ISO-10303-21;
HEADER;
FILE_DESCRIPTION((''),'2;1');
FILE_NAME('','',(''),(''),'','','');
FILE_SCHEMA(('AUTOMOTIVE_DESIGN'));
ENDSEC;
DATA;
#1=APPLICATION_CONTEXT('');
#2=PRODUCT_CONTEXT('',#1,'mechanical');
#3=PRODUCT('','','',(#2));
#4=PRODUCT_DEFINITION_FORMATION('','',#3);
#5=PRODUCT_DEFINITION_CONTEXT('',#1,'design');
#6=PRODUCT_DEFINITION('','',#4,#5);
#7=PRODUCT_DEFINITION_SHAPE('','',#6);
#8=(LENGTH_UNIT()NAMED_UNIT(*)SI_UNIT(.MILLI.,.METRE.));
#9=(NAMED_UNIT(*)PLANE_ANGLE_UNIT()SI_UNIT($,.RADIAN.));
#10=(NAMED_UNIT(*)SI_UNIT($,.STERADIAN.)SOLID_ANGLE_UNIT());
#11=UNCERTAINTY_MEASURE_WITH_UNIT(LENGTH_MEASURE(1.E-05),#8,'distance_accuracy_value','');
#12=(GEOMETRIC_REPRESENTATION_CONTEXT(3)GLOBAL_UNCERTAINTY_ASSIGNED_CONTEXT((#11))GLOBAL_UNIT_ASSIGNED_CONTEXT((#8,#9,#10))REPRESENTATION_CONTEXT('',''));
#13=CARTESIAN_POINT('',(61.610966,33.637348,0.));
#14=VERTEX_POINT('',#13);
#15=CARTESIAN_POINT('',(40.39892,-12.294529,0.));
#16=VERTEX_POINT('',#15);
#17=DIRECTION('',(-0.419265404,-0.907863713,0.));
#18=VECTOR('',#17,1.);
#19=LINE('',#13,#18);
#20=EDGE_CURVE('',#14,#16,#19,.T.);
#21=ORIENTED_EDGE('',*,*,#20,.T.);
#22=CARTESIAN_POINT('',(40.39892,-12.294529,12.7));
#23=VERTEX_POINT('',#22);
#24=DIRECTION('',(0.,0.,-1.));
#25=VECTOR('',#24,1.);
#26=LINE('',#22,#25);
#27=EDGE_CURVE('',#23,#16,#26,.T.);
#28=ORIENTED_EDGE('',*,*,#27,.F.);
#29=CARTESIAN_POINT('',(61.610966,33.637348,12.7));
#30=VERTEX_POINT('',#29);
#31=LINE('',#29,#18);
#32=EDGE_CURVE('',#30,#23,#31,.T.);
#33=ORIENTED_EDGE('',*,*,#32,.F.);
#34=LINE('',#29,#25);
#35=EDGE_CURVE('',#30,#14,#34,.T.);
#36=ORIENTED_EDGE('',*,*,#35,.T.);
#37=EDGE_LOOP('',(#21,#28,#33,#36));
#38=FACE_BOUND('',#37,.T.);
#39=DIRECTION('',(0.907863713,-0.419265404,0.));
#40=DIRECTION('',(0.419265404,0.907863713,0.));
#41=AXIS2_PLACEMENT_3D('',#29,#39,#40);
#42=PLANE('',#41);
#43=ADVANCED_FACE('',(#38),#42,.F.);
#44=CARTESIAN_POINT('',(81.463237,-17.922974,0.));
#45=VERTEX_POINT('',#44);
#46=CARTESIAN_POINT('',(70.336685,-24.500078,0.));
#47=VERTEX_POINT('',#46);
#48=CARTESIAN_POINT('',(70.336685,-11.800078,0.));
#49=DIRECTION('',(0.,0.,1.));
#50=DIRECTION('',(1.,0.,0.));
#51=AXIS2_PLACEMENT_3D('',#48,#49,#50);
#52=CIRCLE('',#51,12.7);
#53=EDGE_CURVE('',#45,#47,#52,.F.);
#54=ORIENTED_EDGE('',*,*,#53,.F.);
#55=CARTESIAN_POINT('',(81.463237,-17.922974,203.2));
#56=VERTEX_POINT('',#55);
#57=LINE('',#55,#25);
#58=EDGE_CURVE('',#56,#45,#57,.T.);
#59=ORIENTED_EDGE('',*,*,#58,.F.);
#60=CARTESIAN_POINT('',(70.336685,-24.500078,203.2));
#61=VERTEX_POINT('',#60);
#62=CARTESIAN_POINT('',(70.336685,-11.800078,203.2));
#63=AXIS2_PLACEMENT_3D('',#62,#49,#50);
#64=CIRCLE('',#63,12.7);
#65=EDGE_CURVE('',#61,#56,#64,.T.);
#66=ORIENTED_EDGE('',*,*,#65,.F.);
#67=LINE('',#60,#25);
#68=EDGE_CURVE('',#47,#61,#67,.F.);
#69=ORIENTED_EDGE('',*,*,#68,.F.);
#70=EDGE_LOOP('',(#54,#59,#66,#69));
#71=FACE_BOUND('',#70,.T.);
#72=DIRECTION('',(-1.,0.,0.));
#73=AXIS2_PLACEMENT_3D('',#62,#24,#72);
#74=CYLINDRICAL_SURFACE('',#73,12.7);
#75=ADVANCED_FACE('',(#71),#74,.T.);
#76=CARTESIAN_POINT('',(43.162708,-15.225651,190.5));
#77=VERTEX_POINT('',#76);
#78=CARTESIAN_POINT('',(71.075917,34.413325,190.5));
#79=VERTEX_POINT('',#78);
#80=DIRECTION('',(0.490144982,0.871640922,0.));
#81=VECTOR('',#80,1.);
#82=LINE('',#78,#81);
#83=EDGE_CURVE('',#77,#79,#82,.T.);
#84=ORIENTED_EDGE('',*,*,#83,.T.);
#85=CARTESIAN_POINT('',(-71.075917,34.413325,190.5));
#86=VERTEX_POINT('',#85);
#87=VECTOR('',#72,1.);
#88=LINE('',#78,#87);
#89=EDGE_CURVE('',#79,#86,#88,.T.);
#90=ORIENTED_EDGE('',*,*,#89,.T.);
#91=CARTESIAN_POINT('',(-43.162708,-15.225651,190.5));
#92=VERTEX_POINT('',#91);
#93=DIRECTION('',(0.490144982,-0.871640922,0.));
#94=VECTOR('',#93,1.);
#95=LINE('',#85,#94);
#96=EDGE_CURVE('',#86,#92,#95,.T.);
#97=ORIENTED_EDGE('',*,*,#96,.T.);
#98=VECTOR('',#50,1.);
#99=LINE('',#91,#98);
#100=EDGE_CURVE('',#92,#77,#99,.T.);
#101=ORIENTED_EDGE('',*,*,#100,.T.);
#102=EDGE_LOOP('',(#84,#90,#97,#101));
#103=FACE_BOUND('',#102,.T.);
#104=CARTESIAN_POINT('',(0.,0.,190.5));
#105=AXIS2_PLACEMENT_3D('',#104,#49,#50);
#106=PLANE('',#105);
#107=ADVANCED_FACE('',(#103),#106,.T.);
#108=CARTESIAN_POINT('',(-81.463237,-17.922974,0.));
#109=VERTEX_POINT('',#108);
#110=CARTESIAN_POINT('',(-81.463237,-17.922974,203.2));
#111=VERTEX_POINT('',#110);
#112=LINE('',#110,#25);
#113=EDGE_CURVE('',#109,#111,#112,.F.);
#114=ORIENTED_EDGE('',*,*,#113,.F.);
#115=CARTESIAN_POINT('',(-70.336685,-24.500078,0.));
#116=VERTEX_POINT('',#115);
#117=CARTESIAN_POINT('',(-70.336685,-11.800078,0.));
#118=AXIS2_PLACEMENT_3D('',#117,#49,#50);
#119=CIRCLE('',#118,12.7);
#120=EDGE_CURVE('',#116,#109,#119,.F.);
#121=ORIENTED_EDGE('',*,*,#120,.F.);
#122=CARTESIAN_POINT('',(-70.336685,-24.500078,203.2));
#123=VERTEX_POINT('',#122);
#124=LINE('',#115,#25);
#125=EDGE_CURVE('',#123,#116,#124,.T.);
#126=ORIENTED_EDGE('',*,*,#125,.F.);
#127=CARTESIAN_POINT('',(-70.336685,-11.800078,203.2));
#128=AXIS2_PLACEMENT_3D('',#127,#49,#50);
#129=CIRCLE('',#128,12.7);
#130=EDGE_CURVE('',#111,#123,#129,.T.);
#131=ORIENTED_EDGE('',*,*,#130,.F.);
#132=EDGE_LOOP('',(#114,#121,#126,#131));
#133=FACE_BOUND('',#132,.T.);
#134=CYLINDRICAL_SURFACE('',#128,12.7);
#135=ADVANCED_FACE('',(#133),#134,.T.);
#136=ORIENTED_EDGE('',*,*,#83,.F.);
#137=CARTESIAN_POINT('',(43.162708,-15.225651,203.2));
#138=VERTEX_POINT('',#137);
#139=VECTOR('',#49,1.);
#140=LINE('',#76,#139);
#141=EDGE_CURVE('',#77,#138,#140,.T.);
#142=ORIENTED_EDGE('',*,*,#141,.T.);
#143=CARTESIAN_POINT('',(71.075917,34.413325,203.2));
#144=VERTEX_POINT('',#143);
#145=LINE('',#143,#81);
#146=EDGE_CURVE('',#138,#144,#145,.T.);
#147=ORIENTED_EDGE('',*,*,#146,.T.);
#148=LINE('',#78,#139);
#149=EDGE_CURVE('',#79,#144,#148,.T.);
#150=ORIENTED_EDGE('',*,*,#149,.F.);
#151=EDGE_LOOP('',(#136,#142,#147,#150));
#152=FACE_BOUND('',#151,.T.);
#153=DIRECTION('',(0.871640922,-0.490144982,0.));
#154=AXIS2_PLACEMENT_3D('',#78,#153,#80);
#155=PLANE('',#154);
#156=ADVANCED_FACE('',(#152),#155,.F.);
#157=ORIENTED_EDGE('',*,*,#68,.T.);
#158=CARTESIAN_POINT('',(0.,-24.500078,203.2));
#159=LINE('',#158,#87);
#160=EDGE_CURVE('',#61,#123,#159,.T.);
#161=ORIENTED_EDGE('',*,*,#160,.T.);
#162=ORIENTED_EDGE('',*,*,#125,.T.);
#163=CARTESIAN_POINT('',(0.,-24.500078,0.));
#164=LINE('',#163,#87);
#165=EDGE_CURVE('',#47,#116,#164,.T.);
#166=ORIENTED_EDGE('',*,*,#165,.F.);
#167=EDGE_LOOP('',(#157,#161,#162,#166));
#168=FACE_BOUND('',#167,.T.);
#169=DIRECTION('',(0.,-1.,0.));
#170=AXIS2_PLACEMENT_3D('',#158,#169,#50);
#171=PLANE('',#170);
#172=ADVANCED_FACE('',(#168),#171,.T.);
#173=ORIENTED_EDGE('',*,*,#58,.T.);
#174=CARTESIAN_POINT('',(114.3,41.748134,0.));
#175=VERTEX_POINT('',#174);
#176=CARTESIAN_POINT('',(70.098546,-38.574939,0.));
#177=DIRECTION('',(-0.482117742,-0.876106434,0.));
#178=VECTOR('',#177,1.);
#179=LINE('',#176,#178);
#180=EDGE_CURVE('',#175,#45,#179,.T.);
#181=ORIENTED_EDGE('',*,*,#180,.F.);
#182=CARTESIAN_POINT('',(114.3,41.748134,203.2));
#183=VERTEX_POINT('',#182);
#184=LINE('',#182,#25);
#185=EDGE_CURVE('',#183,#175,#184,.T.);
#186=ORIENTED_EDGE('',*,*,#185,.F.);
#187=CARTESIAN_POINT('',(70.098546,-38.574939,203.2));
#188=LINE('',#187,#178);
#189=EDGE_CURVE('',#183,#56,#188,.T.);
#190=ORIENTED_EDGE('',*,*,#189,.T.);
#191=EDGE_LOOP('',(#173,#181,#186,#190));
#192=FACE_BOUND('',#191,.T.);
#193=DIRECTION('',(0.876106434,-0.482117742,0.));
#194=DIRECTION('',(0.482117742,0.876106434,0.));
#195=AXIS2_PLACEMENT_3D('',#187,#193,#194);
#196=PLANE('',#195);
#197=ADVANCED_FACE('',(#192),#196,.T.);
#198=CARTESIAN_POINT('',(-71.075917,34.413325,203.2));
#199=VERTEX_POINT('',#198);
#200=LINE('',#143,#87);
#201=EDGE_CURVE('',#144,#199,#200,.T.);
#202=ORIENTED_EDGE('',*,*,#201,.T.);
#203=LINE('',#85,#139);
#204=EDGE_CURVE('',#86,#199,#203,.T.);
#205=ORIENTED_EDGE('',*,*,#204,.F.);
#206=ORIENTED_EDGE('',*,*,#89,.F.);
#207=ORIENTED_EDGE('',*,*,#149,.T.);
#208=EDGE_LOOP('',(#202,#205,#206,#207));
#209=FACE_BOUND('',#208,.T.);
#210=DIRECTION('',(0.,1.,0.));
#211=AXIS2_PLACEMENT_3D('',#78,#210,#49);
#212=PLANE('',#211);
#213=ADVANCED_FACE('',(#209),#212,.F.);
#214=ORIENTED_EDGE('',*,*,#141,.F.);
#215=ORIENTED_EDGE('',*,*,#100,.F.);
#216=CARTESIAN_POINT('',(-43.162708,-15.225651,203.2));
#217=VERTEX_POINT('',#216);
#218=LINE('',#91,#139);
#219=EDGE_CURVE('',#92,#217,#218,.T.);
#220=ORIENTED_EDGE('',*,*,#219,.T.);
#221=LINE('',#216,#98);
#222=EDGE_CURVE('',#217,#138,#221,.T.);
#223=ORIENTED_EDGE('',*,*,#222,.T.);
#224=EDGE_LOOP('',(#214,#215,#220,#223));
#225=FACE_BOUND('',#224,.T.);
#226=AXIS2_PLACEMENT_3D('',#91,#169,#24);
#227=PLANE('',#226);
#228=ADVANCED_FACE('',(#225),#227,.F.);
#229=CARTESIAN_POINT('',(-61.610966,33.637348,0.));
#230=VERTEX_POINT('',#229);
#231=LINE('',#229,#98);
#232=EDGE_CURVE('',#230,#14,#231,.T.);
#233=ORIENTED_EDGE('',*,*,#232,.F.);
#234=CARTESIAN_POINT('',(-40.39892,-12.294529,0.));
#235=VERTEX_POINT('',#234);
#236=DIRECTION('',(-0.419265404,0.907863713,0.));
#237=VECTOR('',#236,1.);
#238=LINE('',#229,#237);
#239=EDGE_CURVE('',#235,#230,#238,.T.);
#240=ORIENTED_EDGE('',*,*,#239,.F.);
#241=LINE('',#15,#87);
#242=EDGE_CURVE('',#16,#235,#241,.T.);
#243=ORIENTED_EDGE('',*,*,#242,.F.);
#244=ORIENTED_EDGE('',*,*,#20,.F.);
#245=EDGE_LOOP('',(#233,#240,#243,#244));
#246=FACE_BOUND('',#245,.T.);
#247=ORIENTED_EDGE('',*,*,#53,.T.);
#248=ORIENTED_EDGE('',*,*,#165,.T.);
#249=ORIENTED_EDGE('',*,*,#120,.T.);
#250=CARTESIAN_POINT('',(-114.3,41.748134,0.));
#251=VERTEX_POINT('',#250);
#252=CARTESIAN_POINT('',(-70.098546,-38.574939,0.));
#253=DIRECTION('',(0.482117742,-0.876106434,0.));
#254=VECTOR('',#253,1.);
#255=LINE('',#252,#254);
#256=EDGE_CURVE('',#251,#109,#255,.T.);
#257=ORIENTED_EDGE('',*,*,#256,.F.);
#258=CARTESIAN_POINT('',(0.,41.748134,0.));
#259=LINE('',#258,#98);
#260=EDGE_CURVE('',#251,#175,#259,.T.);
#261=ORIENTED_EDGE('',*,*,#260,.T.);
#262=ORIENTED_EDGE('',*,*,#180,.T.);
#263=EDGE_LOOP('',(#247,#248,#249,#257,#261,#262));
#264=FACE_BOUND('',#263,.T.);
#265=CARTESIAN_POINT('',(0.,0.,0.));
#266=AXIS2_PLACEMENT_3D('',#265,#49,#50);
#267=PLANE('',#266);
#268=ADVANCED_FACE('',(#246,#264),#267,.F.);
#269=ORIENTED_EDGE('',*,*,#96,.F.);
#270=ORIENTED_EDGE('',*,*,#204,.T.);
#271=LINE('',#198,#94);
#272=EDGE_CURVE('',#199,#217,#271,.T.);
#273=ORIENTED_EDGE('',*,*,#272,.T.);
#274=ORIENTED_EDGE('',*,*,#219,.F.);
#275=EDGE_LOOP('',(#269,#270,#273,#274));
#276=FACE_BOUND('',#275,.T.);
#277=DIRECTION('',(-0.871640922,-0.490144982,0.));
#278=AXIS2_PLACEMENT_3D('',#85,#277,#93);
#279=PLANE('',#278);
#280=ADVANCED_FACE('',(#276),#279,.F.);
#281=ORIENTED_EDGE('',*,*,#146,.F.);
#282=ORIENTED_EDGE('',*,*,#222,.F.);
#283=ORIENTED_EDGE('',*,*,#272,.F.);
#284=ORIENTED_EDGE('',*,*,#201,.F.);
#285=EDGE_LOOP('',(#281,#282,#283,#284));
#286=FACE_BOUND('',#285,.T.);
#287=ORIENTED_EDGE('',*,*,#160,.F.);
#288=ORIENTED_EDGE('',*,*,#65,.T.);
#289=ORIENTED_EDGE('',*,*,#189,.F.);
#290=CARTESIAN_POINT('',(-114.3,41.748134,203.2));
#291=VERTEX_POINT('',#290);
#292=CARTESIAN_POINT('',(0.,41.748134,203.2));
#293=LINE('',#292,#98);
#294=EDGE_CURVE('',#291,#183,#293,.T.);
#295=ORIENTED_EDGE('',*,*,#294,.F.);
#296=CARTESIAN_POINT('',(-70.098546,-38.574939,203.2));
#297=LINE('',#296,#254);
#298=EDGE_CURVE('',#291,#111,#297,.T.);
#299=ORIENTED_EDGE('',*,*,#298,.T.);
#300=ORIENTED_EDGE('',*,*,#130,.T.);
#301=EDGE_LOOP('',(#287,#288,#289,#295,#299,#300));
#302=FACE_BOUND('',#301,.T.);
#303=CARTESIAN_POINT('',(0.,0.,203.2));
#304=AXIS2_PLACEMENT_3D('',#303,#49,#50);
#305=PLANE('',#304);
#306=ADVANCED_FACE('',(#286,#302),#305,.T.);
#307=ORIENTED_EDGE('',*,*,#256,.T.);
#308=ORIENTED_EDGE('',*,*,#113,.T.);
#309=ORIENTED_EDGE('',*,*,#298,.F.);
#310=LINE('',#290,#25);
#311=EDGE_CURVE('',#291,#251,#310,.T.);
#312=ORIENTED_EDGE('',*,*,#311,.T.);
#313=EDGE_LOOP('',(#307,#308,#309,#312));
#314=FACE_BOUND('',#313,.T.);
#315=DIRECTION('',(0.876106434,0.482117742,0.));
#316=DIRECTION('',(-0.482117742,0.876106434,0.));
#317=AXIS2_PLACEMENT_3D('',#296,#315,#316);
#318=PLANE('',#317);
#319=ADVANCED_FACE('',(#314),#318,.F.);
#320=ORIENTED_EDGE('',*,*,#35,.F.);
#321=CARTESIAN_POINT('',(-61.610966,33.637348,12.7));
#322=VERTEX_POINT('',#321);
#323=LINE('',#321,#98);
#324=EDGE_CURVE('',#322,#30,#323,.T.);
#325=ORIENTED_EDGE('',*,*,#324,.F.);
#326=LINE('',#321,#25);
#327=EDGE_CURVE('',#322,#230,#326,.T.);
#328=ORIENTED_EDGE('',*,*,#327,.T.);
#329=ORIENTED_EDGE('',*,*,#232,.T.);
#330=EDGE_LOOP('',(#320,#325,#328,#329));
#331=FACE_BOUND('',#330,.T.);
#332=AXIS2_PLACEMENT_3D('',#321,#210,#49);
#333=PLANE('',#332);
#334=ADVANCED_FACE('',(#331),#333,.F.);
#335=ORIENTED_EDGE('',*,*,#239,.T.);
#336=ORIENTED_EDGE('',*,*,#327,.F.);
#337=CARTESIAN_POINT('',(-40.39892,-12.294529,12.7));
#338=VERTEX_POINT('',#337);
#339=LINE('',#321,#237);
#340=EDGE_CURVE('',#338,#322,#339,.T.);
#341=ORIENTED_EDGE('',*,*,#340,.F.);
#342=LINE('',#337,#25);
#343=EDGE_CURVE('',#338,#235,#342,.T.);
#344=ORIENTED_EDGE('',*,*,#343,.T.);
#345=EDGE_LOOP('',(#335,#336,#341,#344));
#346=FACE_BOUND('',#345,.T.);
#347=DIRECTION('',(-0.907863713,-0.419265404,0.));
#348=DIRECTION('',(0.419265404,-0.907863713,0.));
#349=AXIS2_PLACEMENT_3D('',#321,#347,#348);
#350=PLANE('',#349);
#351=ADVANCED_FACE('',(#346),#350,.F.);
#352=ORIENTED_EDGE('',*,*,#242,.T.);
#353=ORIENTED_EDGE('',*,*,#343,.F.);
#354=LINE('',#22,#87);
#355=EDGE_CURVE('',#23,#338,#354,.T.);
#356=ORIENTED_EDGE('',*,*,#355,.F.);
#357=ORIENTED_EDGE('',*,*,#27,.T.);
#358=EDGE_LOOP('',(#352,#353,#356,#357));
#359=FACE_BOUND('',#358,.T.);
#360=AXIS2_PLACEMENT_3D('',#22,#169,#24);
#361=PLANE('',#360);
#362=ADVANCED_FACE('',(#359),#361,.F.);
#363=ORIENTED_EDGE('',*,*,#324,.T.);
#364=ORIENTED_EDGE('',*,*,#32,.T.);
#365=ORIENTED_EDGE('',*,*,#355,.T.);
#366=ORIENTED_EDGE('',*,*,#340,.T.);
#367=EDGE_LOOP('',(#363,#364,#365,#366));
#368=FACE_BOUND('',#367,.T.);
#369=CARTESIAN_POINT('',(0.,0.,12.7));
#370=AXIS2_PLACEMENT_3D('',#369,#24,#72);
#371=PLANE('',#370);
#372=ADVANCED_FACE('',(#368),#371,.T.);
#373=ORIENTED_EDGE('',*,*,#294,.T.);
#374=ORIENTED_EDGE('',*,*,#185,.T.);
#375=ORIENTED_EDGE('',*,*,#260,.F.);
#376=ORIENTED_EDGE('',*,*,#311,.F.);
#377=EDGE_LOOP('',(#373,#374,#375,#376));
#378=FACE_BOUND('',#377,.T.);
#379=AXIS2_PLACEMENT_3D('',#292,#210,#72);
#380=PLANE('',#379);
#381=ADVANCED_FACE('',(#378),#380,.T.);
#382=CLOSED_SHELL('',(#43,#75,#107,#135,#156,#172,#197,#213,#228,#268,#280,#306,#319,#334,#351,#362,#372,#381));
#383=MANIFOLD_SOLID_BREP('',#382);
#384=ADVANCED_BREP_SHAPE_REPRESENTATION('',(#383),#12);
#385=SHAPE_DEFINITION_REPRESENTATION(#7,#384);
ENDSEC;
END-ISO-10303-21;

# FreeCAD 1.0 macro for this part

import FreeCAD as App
import Part
import Sketcher
from FreeCAD import Vector
Q = App.Units.Quantity


def edges_at(feature, points):
    """Names of the edges that pass closest to the given points."""
    edges = feature.Shape.Edges
    near = lambda p: min(range(len(edges)), key=lambda i: edges[i].distToShape(Part.Vertex(*p))[0])
    return sorted({f"Edge{near(p) + 1}" for p in points})


def add_polygon(sketch, points):
    """Adds a closed chain of lines whose ends are joined by coincident constraints."""
    first, n = sketch.GeometryCount, len(points)
    for a, b in zip(points, points[1:] + points[:1]):
        sketch.addGeometry(Part.LineSegment(App.Vector(*a, 0), App.Vector(*b, 0)), False)
    for i in range(n):
        sketch.addConstraint(Sketcher.Constraint("Coincident", first + i, 2, first + (i + 1) % n, 1))

doc = App.newDocument("Part")
body = doc.addObject("PartDesign::Body", "Body")

sketch1 = doc.addObject("Sketcher::SketchObject", "Sketch")
body.addObject(sketch1)
sketch1.AttachmentSupport = (doc.XY_Plane, [""])
sketch1.MapMode = "FlatFace"
add_polygon(sketch1, [(114, 42), (-114, 42), (-78, -25), (78, -25)])
sketch1.addConstraint(Sketcher.Constraint("Horizontal", 0))
sketch1.addConstraint(Sketcher.Constraint("Horizontal", 2))
sketch1.addConstraint(Sketcher.Constraint("Equal", 1, 3))
sketch1.addConstraint(Sketcher.Constraint("DistanceX", 0, 2, 0, 1, Q("9 in")))
sketch1.addConstraint(Sketcher.Constraint("DistanceX", 0, 2, -1, 1, Q("4.5 in")))
sketch1.addConstraint(Sketcher.Constraint("DistanceX", 2, 1, 2, 2, 155.687767))
sketch1.addConstraint(Sketcher.Constraint("DistanceY", 1, 2, -1, 1, 24.500078))
sketch1.addConstraint(Sketcher.Constraint("Distance", 1, 75.616625))
pad1 = doc.addObject("PartDesign::Pad", "Pad")
body.addObject(pad1)
pad1.Profile = sketch1
pad1.Length = Q("8 in")

sketch2 = doc.addObject("Sketcher::SketchObject", "Sketch001")
body.addObject(sketch2)
sketch2.AttachmentSupport = (doc.XY_Plane, [""])
sketch2.MapMode = "FlatFace"
add_polygon(sketch2, [(-62, 34), (62, 34), (40, -12), (-40, -12)])
sketch2.addConstraint(Sketcher.Constraint("Horizontal", 0))
sketch2.addConstraint(Sketcher.Constraint("Horizontal", 2))
sketch2.addConstraint(Sketcher.Constraint("Equal", 1, 3))
sketch2.addConstraint(Sketcher.Constraint("DistanceX", 0, 1, 0, 2, 123.221931))
sketch2.addConstraint(Sketcher.Constraint("DistanceX", 2, 2, 2, 1, 80.797839))
sketch2.addConstraint(Sketcher.Constraint("Distance", 1, 50.593361))
sketch2.addConstraint(Sketcher.Constraint("DistanceX", -1, 1, 1, 2, 40.39892))
sketch2.addConstraint(Sketcher.Constraint("DistanceY", 1, 2, -1, 1, 12.294529))
pocket1 = doc.addObject("PartDesign::Pocket", "Pocket")
body.addObject(pocket1)
pocket1.Profile = sketch2
pocket1.Length = Q("0.5 in")
pocket1.Reversed = True

sketch3 = doc.addObject("Sketcher::SketchObject", "Sketch002")
body.addObject(sketch3)
sketch3.AttachmentSupport = (doc.XY_Plane, [""])
sketch3.MapMode = "FlatFace"
sketch3.AttachmentOffset = App.Placement(Vector(0, 0, 8 * 25.4), App.Rotation())
add_polygon(sketch3, [(71, 34), (-71, 34), (-43, -15), (43, -15)])
sketch3.addConstraint(Sketcher.Constraint("Horizontal", 0))
sketch3.addConstraint(Sketcher.Constraint("Horizontal", 2))
sketch3.addConstraint(Sketcher.Constraint("Equal", 1, 3))
sketch3.addConstraint(Sketcher.Constraint("Distance", 1, 56.948882))
sketch3.addConstraint(Sketcher.Constraint("DistanceX", 0, 2, 0, 1, 142.151834))
sketch3.addConstraint(Sketcher.Constraint("DistanceX", 2, 1, 2, 2, 86.325416))
sketch3.addConstraint(Sketcher.Constraint("DistanceX", 1, 2, -1, 1, 43.162708))
sketch3.addConstraint(Sketcher.Constraint("DistanceY", 1, 2, -1, 1, 15.225651))
pocket2 = doc.addObject("PartDesign::Pocket", "Pocket001")
body.addObject(pocket2)
pocket2.Profile = sketch3
pocket2.Length = Q("0.5 in")
doc.recompute()

fillet = doc.addObject("PartDesign::Fillet", "Fillet")
body.addObject(fillet)
fillet.Base = (pocket2, edges_at(pocket2, [(77.844, -24.5, 101.6), (-77.844, -24.5, 101.6)]))
fillet.Radius = Q("0.5 in")

doc.recompute()
